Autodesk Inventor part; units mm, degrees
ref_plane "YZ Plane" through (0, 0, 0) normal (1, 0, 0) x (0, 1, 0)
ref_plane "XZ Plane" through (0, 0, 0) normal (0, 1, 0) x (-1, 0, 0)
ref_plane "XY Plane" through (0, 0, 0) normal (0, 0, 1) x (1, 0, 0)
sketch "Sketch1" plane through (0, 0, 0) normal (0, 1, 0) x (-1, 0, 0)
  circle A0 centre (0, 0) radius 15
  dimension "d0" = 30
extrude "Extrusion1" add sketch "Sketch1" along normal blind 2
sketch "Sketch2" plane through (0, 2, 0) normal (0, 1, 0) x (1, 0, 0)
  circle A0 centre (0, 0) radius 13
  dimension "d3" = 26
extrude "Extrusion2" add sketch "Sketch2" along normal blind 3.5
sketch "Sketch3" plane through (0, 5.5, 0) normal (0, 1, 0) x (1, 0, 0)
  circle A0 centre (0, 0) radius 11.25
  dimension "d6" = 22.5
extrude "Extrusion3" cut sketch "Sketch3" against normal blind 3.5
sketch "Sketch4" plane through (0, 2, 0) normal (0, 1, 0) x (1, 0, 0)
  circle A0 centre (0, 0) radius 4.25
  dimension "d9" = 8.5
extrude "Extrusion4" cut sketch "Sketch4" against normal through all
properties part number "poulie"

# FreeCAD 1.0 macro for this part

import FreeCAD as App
import Part
import Sketcher

V = App.Vector
Q = App.Units.Quantity

doc = App.newDocument("Part")
params = doc.addObject("Spreadsheet::Sheet", "Params")
for row, (alias, value) in enumerate([
    ("sketch1_diameter", "30 mm"),
    ("pad1_length", "2 mm"),
    ("sketch2_diameter", "26 mm"),
    ("pad2_length", "3.5 mm"),
    ("sketch3_diameter", "22.5 mm"),
    ("pocket1_length", "3.5 mm"),
    ("sketch4_diameter", "8.5 mm"),
], start=1):
    params.set(f"A{row}", alias)
    params.set(f"B{row}", "=" + value)
    params.setAlias(f"B{row}", alias)

body = doc.addObject("PartDesign::Body", "Body")

# Sketch on XZ plane
sketch1 = body.newObject("Sketcher::SketchObject", "Sketch")
sketch1.AttachmentSupport = (doc.getObject("XZ_Plane"), [""])
sketch1.MapMode = "FlatFace"
sketch1.addGeometry(Part.Circle(V(0, 0, 0), V(0, 0, 1), 15), False)
sketch1.addConstraint(Sketcher.Constraint("Coincident", 0, 3, -1, 1))
sketch1.addConstraint(Sketcher.Constraint("Diameter", 0, Q("30 mm")))
sketch1.setExpression("Constraints[1]", "Params.sketch1_diameter")
pad1 = body.newObject("PartDesign::Pad", "Pad")
pad1.Profile = sketch1
pad1.setExpression("Length", "Params.pad1_length")
pad1.Reversed = True

# Sketch on XZ plane
sketch2 = body.newObject("Sketcher::SketchObject", "Sketch001")
sketch2.AttachmentSupport = (doc.getObject("XZ_Plane"), [""])
sketch2.MapMode = "FlatFace"
sketch2.AttachmentOffset = App.Placement(V(0, 0, -2), App.Rotation())
sketch2.addGeometry(Part.Circle(V(0, 0, 0), V(0, 0, 1), 13), False)
sketch2.addConstraint(Sketcher.Constraint("Coincident", 0, 3, -1, 1))
sketch2.addConstraint(Sketcher.Constraint("Diameter", 0, Q("26 mm")))
sketch2.setExpression("Constraints[1]", "Params.sketch2_diameter")
pad2 = body.newObject("PartDesign::Pad", "Pad001")
pad2.Profile = sketch2
pad2.setExpression("Length", "Params.pad2_length")
pad2.Reversed = True

# Sketch on XZ plane
sketch3 = body.newObject("Sketcher::SketchObject", "Sketch002")
sketch3.AttachmentSupport = (doc.getObject("XZ_Plane"), [""])
sketch3.MapMode = "FlatFace"
sketch3.AttachmentOffset = App.Placement(V(0, 0, -5.5), App.Rotation())
sketch3.addGeometry(Part.Circle(V(0, 0, 0), V(0, 0, 1), 11), False)
sketch3.addConstraint(Sketcher.Constraint("Coincident", 0, 3, -1, 1))
sketch3.addConstraint(Sketcher.Constraint("Diameter", 0, Q("22.5 mm")))
sketch3.setExpression("Constraints[1]", "Params.sketch3_diameter")
pocket1 = body.newObject("PartDesign::Pocket", "Pocket")
pocket1.Profile = sketch3
pocket1.setExpression("Length", "Params.pocket1_length")
pocket1.Reversed = True

# Sketch on XZ plane
sketch4 = body.newObject("Sketcher::SketchObject", "Sketch003")
sketch4.AttachmentSupport = (doc.getObject("XZ_Plane"), [""])
sketch4.MapMode = "FlatFace"
sketch4.AttachmentOffset = App.Placement(V(0, 0, -2), App.Rotation())
sketch4.addGeometry(Part.Circle(V(0, 0, 0), V(0, 0, 1), 4.2), False)
sketch4.addConstraint(Sketcher.Constraint("Coincident", 0, 3, -1, 1))
sketch4.addConstraint(Sketcher.Constraint("Diameter", 0, Q("8.5 mm")))
sketch4.setExpression("Constraints[1]", "Params.sketch4_diameter")
pocket2 = body.newObject("PartDesign::Pocket", "Pocket001")
pocket2.Profile = sketch4
pocket2.Type = "ThroughAll"
pocket2.Reversed = True

doc.recompute()
